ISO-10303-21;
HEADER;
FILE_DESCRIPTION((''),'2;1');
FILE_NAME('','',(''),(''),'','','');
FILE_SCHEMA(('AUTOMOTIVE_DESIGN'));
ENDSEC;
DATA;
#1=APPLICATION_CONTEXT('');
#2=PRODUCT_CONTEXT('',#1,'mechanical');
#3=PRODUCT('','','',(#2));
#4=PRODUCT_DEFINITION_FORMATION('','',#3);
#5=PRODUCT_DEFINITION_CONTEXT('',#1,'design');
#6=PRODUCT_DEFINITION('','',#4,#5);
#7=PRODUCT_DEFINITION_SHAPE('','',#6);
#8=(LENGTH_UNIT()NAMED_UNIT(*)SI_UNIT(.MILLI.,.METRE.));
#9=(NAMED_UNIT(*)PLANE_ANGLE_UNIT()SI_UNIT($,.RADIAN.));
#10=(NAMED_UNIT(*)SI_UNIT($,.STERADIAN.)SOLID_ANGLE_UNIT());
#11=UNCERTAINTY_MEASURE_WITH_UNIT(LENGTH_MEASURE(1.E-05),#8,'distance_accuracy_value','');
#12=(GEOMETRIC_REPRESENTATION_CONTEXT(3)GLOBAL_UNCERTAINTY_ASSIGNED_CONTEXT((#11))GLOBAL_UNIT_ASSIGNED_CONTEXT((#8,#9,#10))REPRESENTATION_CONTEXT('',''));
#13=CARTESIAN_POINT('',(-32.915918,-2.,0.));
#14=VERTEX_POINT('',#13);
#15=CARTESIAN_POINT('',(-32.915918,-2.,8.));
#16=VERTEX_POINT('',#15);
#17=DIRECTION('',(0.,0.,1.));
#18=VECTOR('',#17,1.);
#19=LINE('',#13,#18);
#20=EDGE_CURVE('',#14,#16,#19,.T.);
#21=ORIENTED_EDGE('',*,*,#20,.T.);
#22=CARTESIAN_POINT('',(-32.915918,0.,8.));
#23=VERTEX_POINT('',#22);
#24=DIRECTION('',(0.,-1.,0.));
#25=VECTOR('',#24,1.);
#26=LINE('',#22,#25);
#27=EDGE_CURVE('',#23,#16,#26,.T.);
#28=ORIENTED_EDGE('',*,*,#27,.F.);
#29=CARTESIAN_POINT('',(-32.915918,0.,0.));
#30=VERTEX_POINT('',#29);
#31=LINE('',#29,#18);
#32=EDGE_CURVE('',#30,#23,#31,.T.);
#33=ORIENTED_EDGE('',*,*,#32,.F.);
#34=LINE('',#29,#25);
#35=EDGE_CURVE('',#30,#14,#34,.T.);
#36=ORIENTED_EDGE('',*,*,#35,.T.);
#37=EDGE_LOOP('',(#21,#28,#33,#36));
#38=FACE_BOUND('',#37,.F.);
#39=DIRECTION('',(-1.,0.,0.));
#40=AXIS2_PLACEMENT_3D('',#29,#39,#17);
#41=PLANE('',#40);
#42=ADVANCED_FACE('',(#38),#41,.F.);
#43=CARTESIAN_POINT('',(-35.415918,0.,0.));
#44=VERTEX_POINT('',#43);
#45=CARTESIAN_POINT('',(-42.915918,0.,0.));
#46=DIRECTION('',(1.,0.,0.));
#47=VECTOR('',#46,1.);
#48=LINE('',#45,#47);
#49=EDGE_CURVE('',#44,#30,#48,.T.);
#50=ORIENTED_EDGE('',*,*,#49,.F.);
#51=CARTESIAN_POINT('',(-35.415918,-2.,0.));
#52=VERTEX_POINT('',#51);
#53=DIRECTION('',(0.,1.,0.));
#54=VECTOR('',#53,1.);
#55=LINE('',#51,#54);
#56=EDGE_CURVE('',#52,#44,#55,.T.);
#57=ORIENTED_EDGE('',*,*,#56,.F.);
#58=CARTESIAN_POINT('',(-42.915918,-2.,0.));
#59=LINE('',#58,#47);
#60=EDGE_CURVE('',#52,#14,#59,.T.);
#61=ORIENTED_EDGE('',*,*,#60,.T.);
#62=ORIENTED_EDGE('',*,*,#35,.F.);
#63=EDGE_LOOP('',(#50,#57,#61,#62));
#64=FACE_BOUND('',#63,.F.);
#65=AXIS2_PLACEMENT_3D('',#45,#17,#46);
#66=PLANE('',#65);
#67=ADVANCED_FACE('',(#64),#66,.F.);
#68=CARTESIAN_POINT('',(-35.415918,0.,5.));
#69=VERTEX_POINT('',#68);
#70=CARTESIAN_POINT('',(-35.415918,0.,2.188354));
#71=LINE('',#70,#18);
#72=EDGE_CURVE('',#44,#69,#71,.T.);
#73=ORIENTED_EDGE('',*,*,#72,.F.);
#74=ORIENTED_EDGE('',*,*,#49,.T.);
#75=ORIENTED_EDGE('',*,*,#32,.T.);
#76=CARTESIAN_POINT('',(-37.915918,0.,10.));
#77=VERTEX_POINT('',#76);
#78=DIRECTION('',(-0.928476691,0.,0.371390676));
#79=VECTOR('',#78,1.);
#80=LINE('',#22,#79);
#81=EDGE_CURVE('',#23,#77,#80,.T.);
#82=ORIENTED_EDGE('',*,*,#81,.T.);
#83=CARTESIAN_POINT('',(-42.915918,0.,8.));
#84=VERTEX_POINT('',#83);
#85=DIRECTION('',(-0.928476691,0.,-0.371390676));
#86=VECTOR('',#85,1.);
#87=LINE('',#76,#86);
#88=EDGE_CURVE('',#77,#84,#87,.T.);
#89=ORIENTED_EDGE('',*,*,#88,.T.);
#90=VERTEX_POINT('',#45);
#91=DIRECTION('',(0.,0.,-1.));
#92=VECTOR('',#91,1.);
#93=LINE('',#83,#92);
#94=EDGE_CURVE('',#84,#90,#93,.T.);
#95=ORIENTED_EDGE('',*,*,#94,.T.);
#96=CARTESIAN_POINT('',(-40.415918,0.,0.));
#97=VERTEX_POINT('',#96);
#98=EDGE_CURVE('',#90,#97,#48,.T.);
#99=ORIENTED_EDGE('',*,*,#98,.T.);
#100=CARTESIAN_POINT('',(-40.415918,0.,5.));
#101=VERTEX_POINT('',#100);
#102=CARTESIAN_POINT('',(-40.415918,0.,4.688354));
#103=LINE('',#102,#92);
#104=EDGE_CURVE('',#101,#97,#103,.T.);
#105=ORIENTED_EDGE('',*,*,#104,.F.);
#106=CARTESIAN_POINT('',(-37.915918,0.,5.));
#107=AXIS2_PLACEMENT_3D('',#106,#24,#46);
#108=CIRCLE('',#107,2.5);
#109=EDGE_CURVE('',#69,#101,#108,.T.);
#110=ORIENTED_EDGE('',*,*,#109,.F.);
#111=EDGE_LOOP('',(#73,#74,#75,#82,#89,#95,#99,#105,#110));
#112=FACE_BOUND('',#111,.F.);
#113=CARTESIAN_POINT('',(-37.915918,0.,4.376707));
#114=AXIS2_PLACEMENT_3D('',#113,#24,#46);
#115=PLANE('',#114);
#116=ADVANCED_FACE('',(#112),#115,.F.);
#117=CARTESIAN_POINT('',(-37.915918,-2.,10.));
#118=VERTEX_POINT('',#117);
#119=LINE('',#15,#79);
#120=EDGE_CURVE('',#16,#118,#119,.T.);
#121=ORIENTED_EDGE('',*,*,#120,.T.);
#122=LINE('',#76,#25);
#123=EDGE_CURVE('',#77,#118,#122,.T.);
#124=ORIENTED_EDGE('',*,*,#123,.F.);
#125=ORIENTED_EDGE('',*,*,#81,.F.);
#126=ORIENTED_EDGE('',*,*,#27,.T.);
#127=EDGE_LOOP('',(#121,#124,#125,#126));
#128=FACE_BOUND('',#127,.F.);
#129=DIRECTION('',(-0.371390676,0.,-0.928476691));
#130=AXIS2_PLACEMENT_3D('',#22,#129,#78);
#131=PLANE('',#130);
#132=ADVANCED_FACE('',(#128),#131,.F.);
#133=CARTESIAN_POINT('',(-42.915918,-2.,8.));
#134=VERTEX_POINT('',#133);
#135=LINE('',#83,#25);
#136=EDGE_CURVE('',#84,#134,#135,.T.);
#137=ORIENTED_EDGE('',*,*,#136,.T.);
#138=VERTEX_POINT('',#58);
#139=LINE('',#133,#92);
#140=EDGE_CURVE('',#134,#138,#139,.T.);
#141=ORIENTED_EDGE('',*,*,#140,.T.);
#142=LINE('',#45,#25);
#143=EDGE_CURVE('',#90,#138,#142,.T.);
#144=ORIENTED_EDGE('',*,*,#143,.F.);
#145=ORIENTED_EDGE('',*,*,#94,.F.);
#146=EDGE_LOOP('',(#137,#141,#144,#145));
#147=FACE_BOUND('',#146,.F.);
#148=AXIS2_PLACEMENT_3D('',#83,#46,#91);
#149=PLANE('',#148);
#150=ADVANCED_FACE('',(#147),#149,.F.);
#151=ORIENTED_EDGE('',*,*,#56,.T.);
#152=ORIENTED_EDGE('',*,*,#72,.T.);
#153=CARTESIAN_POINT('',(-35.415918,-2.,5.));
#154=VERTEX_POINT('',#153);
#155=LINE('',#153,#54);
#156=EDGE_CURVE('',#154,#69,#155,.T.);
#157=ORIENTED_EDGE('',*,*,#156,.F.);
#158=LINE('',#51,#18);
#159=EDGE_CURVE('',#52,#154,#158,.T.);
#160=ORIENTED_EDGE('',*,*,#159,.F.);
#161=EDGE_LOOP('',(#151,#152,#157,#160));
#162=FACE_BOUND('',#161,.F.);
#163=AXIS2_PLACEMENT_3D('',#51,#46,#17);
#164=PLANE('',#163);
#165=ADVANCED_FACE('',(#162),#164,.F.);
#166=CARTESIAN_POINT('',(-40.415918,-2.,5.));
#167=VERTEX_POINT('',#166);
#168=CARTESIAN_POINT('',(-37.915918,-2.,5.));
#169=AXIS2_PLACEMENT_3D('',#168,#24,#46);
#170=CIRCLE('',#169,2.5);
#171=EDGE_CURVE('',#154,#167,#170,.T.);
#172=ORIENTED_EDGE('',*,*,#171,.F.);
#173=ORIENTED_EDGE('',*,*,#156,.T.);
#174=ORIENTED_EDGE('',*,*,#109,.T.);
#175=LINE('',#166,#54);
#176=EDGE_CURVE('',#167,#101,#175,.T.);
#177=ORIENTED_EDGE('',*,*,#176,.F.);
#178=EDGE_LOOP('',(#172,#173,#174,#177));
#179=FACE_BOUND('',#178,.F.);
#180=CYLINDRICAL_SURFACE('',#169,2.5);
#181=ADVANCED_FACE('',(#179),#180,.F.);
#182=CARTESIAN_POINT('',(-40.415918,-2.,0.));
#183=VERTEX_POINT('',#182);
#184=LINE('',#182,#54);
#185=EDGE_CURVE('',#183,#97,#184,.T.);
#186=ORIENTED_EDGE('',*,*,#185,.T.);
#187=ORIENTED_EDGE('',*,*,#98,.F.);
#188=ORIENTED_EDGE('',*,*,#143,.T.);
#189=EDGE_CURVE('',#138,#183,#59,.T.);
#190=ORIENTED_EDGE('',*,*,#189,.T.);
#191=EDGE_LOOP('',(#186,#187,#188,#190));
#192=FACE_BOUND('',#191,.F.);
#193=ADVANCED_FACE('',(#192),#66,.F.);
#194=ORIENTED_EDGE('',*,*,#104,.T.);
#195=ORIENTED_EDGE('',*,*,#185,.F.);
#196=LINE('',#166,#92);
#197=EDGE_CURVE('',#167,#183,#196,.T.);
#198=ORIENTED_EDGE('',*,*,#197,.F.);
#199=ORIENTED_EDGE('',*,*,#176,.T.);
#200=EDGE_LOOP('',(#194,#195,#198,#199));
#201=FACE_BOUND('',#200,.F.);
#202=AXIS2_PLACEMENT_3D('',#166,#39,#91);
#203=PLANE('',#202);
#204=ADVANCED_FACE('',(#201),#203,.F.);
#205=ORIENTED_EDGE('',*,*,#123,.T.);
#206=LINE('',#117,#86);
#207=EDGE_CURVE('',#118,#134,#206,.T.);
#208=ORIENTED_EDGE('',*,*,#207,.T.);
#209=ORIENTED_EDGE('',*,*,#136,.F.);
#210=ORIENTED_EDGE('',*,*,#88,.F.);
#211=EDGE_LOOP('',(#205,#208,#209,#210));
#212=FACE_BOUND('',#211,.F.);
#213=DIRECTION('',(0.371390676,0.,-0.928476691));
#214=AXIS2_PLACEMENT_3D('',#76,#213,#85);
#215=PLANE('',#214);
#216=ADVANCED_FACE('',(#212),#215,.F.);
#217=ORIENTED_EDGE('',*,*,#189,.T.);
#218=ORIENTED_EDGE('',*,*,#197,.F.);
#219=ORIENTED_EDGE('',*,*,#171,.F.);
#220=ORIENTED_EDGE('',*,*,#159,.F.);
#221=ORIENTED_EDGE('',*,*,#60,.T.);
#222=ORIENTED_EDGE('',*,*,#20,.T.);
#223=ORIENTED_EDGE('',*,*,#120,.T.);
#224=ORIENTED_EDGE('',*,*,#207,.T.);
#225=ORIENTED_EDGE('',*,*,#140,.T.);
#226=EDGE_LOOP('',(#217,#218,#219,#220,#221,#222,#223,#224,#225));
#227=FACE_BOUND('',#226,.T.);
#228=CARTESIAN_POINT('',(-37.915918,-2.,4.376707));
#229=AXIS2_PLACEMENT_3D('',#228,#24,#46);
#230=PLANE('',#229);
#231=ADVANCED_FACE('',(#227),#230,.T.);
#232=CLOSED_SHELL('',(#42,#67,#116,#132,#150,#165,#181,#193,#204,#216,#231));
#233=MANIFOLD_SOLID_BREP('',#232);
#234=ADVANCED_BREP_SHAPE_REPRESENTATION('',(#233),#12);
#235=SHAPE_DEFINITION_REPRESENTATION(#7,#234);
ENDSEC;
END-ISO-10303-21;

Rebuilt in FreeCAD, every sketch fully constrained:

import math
import FreeCAD as App
import Part
import Sketcher

V = App.Vector
Q = App.Units.Quantity


def add_polygon(sketch, points):
    """Adds a closed chain of lines whose ends are joined by coincident constraints."""
    first, n = sketch.GeometryCount, len(points)
    for a, b in zip(points, points[1:] + points[:1]):
        sketch.addGeometry(Part.LineSegment(App.Vector(*a, 0), App.Vector(*b, 0)), False)
    for i in range(n):
        sketch.addConstraint(Sketcher.Constraint("Coincident", first + i, 2, first + (i + 1) % n, 1))

doc = App.newDocument("Part")
params = doc.addObject("Spreadsheet::Sheet", "Params")
for row, (alias, value) in enumerate([
    ("sketch1_width", "10 mm"),
    ("sketch1_height", "8 mm"),
    ("pad1_length", "2 mm"),
    ("sketch2_radius", "2.5 mm"),
    ("pocket1_length", "25 mm"),
], start=1):
    params.set(f"A{row}", alias)
    params.set(f"B{row}", "=" + value)
    params.setAlias(f"B{row}", alias)

body = doc.addObject("PartDesign::Body", "Body")

sketch1 = body.newObject("Sketcher::SketchObject", "Sketch")
sketch1.AttachmentSupport = (doc.getObject("XZ_Plane"), [""])
sketch1.MapMode = "FlatFace"
add_polygon(sketch1, [(-43, 8), (-43, 0), (-33, 0), (-33, 8), (-38, 10)])
sketch1.addConstraint([
    Sketcher.Constraint("Vertical", 0),
    Sketcher.Constraint("Horizontal", 1),
    Sketcher.Constraint("Vertical", 2),
    Sketcher.Constraint("PointOnObject", 0, 2, -1),
    Sketcher.Constraint("Horizontal", 2, 2, 4, 2),
    Sketcher.Constraint("Equal", 3, 4),
    Sketcher.Constraint("DistanceX", 1, 1, 1, 2, Q("10 mm")),
    Sketcher.Constraint("DistanceY", 0, 2, 0, 1, Q("8 mm")),
    Sketcher.Constraint("DistanceY", -1, 1, 3, 2, Q("10 mm")),
    Sketcher.Constraint("DistanceX", 0, 2, -1, 1, Q("42.915918 mm")),
])
sketch1.setExpression("Constraints[11]", "Params.sketch1_width")
sketch1.setExpression("Constraints[12]", "Params.sketch1_height")
pad1 = body.newObject("PartDesign::Pad", "Pad")
pad1.Profile = sketch1
pad1.setExpression("Length", "Params.pad1_length")

sketch2 = body.newObject("Sketcher::SketchObject", "Sketch001")
sketch2.AttachmentSupport = (doc.getObject("XZ_Plane"), [""])
sketch2.MapMode = "FlatFace"
sketch2.AttachmentOffset = App.Placement(V(0, 0, 2), App.Rotation())
sketch2.addGeometry([
    Part.ArcOfCircle(Part.Circle(V(-37.9, 5, 0), V(0, 0, 1), 2.5), math.radians(0), math.radians(180)),
    Part.LineSegment(V(-40.4, 5, 0), V(-40.4, 0, 0)),
    Part.LineSegment(V(-40.4, 0, 0), V(-35.4, 0, 0)),
    Part.LineSegment(V(-35.4, 0, 0), V(-35.4, 5, 0)),
], False)
sketch2.addConstraint([
    Sketcher.Constraint("Tangent", 0, 2, 1, 1),
    Sketcher.Constraint("Coincident", 1, 2, 2, 1),
    Sketcher.Constraint("Coincident", 2, 2, 3, 1),
    Sketcher.Constraint("Tangent", 3, 2, 0, 1),
    Sketcher.Constraint("Vertical", 1),
    Sketcher.Constraint("Horizontal", 2),
    Sketcher.Constraint("Vertical", 3),
    Sketcher.Constraint("PointOnObject", 1, 2, -1),
    Sketcher.Constraint("Equal", 2, 1),
    Sketcher.Constraint("Radius", 0, Q("2.5 mm")),
    Sketcher.Constraint("DistanceX", 0, 3, -1, 1, Q("37.915918 mm")),
])
sketch2.setExpression("Constraints[9]", "Params.sketch2_radius")
pocket1 = body.newObject("PartDesign::Pocket", "Pocket")
pocket1.Profile = sketch2
pocket1.setExpression("Length", "Params.pocket1_length")

doc.recompute()
